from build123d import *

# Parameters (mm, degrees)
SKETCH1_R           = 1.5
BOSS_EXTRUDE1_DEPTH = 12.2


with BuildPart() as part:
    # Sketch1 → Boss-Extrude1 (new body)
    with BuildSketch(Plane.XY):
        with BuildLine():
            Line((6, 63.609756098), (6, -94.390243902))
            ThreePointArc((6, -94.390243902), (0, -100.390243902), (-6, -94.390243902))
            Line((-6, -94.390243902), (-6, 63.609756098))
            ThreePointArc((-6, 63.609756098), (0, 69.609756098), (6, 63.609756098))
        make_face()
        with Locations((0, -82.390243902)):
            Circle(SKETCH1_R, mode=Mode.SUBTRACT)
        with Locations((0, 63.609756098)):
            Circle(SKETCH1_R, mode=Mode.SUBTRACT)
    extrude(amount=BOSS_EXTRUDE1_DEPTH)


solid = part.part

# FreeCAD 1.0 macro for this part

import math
import FreeCAD as App
import Part
import Sketcher

V = App.Vector
Q = App.Units.Quantity

doc = App.newDocument("Part")
params = doc.addObject("Spreadsheet::Sheet", "Params")
for row, (alias, value) in enumerate([
    ("sketch1_diameter", "3 mm"),
    ("sketch1_radius", "6 mm"),
    ("sketch1_height", "158 mm"),
    ("pad1_length", "12.2 mm"),
], start=1):
    params.set(f"A{row}", alias)
    params.set(f"B{row}", "=" + value)
    params.setAlias(f"B{row}", alias)

body = doc.addObject("PartDesign::Body", "Body")

# Sketch on XY plane
sketch1 = body.newObject("Sketcher::SketchObject", "Sketch")
sketch1.AttachmentSupport = (doc.getObject("XY_Plane"), [""])
sketch1.MapMode = "FlatFace"
sketch1.addGeometry([
    Part.LineSegment(V(6, -94.4, 0), V(6, 63.6, 0)),  # 0
    Part.ArcOfCircle(Part.Circle(V(0, 63.6, 0), V(0, 0, 1), 6), math.radians(0), math.radians(180)),  # 1
    Part.LineSegment(V(-6, 63.6, 0), V(-6, -94.4, 0)),  # 2
    Part.ArcOfCircle(Part.Circle(V(0, -94.4, 0), V(0, 0, 1), 6), math.radians(180), math.radians(360)),  # 3
    Part.Circle(V(0, -82.4, 0), V(0, 0, 1), 1.5),  # 4
    Part.Circle(V(0, 63.6, 0), V(0, 0, 1), 1.5),  # 5
], False)
sketch1.addConstraint([
    Sketcher.Constraint("Tangent", 0, 2, 1, 1),
    Sketcher.Constraint("Tangent", 1, 2, 2, 1),
    Sketcher.Constraint("Tangent", 2, 2, 3, 1),
    Sketcher.Constraint("Tangent", 3, 2, 0, 1),
    Sketcher.Constraint("Vertical", 0),
    Sketcher.Constraint("Vertical", 2),
    Sketcher.Constraint("Coincident", 5, 3, 1, 3),
    Sketcher.Constraint("Equal", 4, 5),
    Sketcher.Constraint("PointOnObject", 1, 3, -2),
    Sketcher.Constraint("PointOnObject", 4, 3, -2),
    Sketcher.Constraint("Diameter", 4, Q("3 mm")),
    Sketcher.Constraint("Radius", 1, Q("6 mm")),
    Sketcher.Constraint("DistanceY", 0, 1, 0, 2, Q("158 mm")),
    Sketcher.Constraint("DistanceY", 3, 3, 4, 3, Q("12 mm")),
    Sketcher.Constraint("DistanceY", -1, 1, 1, 3, Q("63.609756 mm")),
])
sketch1.setExpression("Constraints[10]", "Params.sketch1_diameter")
sketch1.setExpression("Constraints[11]", "Params.sketch1_radius")
sketch1.setExpression("Constraints[12]", "Params.sketch1_height")
pad1 = body.newObject("PartDesign::Pad", "Pad")
pad1.Profile = sketch1
pad1.setExpression("Length", "Params.pad1_length")

doc.recompute()
